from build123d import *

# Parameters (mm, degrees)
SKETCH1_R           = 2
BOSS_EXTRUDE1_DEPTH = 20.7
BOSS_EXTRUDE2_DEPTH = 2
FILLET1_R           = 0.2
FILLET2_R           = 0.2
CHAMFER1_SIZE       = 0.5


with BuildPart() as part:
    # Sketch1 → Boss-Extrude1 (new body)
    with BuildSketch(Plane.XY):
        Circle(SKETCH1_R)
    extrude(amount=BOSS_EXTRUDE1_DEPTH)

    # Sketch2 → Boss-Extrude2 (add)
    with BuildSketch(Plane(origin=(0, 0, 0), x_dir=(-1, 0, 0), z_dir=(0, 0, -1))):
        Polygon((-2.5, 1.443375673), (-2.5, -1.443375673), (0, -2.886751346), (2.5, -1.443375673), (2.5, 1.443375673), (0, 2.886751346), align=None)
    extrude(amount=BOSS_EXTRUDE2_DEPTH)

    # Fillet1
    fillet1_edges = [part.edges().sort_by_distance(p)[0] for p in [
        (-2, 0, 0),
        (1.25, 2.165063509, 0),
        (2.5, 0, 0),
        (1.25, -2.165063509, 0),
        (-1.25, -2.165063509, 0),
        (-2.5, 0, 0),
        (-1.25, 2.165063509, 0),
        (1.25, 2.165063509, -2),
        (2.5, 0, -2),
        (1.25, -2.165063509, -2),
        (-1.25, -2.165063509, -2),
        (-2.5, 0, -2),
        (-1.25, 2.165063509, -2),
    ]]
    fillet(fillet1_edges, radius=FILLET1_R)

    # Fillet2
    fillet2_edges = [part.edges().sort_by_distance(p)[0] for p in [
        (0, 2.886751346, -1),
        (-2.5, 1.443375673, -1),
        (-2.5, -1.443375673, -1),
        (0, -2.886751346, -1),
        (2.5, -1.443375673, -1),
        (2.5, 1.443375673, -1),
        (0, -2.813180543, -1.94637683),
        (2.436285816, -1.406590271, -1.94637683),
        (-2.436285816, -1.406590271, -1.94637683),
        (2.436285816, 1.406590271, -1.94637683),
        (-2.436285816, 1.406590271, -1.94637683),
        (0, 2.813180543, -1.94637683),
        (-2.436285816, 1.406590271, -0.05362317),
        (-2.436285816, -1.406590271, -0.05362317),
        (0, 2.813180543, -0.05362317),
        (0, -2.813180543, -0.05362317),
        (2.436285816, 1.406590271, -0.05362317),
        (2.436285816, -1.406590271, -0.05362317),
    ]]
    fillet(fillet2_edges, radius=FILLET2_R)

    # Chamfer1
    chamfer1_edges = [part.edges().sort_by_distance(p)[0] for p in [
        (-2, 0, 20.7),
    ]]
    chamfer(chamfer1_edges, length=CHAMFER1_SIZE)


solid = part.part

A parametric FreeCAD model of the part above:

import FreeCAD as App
import Part
import Sketcher
Q = App.Units.Quantity


def edges_at(feature, points):
    """Names of the edges that pass closest to the given points."""
    edges = feature.Shape.Edges
    near = lambda p: min(range(len(edges)), key=lambda i: edges[i].distToShape(Part.Vertex(*p))[0])
    return sorted({f"Edge{near(p) + 1}" for p in points})

doc = App.newDocument("Part")
body = doc.addObject("PartDesign::Body", "Body")

sketch1 = doc.addObject("Sketcher::SketchObject", "Sketch")
body.addObject(sketch1)
sketch1.AttachmentSupport = (doc.XY_Plane, [""])
sketch1.MapMode = "FlatFace"
sketch1.addGeometry(Part.Circle(App.Vector(0, 0, 0), App.Vector(0, 0, 1), 2), False)
sketch1.addConstraint(Sketcher.Constraint("Coincident", 0, 3, -1, 1))
sketch1.addConstraint(Sketcher.Constraint("Diameter", 0, 4.0))
pad1 = doc.addObject("PartDesign::Pad", "Pad")
body.addObject(pad1)
pad1.Profile = sketch1
pad1.Length = 20.7

sketch2 = doc.addObject("Sketcher::SketchObject", "Sketch001")
body.addObject(sketch2)
sketch2.AttachmentSupport = (doc.XY_Plane, [""])
sketch2.MapMode = "FlatFace"
sketch2.addGeometry(Part.LineSegment(App.Vector(2.5, 1.4, 0), App.Vector(2.5, -1.4, 0)), False)
sketch2.addGeometry(Part.LineSegment(App.Vector(2.5, -1.4, 0), App.Vector(0, -2.9, 0)), False)
sketch2.addGeometry(Part.LineSegment(App.Vector(0, -2.9, 0), App.Vector(-2.5, -1.4, 0)), False)
sketch2.addGeometry(Part.LineSegment(App.Vector(-2.5, -1.4, 0), App.Vector(-2.5, 1.4, 0)), False)
sketch2.addGeometry(Part.LineSegment(App.Vector(-2.5, 1.4, 0), App.Vector(0, 2.9, 0)), False)
sketch2.addGeometry(Part.LineSegment(App.Vector(0, 2.9, 0), App.Vector(2.5, 1.4, 0)), False)
sketch2.addConstraint(Sketcher.Constraint("Coincident", 0, 2, 1, 1))
sketch2.addConstraint(Sketcher.Constraint("Coincident", 1, 2, 2, 1))
sketch2.addConstraint(Sketcher.Constraint("Coincident", 2, 2, 3, 1))
sketch2.addConstraint(Sketcher.Constraint("Coincident", 3, 2, 4, 1))
sketch2.addConstraint(Sketcher.Constraint("Coincident", 4, 2, 5, 1))
sketch2.addConstraint(Sketcher.Constraint("Coincident", 5, 2, 0, 1))
sketch2.addConstraint(Sketcher.Constraint("Vertical", 0))
sketch2.addConstraint(Sketcher.Constraint("Vertical", 3))
sketch2.addConstraint(Sketcher.Constraint("Symmetric", 0, 2, 3, 2, -1, 1))
sketch2.addConstraint(Sketcher.Constraint("Symmetric", 1, 2, 4, 2, -1, 1))
sketch2.addConstraint(Sketcher.Constraint("PointOnObject", 1, 2, -2))
sketch2.addConstraint(Sketcher.Constraint("Parallel", 2, 5))
sketch2.addConstraint(Sketcher.Constraint("Horizontal", 0, 2, 2, 2))
sketch2.addConstraint(Sketcher.Constraint("Angle", 1, Q("-150 deg")))
sketch2.addConstraint(Sketcher.Constraint("DistanceX", 2, 2, 0, 2, 5.0))
sketch2.addConstraint(Sketcher.Constraint("DistanceY", 0, 2, 0, 1, 2.886751))
pad2 = doc.addObject("PartDesign::Pad", "Pad001")
body.addObject(pad2)
pad2.Profile = sketch2
pad2.Length = 2
pad2.Reversed = True
doc.recompute()

fillet = doc.addObject("PartDesign::Fillet", "Fillet")
body.addObject(fillet)
fillet.Base = (pad2, edges_at(pad2, [
    (-2, 0, 0),
    (1.25, 2.165, 0),
    (2.5, 0, 0),
    (1.25, -2.165, 0),
    (-1.25, -2.165, 0),
    (-2.5, 0, 0),
    (-1.25, 2.165, 0),
    (1.25, 2.165, -2),
    (2.5, 0, -2),
    (1.25, -2.165, -2),
    (-1.25, -2.165, -2),
    (-2.5, 0, -2),
    (-1.25, 2.165, -2),
]))
fillet.Radius = 0.2
doc.recompute()

fillet2 = doc.addObject("PartDesign::Fillet", "Fillet001")
body.addObject(fillet2)
fillet2.Base = (fillet, edges_at(fillet, [
    (0, 2.887, -1),
    (-2.5, 1.443, -1),
    (-2.5, -1.443, -1),
    (0, -2.887, -1),
    (2.5, -1.443, -1),
    (2.5, 1.443, -1),
    (0, -2.813, -1.946),
    (2.436, -1.407, -1.946),
    (-2.436, -1.407, -1.946),
    (2.436, 1.407, -1.946),
    (-2.436, 1.407, -1.946),
    (0, 2.813, -1.946),
    (-2.436, 1.407, -0.054),
    (-2.436, -1.407, -0.054),
    (0, 2.813, -0.054),
    (0, -2.813, -0.054),
    (2.436, 1.407, -0.054),
    (2.436, -1.407, -0.054),
]))
fillet2.Radius = 0.2
doc.recompute()

chamfer = doc.addObject("PartDesign::Chamfer", "Chamfer")
body.addObject(chamfer)
chamfer.Base = (fillet2, edges_at(fillet2, [(-2, 0, 20.7)]))
chamfer.Size = 0.5

doc.recompute()
